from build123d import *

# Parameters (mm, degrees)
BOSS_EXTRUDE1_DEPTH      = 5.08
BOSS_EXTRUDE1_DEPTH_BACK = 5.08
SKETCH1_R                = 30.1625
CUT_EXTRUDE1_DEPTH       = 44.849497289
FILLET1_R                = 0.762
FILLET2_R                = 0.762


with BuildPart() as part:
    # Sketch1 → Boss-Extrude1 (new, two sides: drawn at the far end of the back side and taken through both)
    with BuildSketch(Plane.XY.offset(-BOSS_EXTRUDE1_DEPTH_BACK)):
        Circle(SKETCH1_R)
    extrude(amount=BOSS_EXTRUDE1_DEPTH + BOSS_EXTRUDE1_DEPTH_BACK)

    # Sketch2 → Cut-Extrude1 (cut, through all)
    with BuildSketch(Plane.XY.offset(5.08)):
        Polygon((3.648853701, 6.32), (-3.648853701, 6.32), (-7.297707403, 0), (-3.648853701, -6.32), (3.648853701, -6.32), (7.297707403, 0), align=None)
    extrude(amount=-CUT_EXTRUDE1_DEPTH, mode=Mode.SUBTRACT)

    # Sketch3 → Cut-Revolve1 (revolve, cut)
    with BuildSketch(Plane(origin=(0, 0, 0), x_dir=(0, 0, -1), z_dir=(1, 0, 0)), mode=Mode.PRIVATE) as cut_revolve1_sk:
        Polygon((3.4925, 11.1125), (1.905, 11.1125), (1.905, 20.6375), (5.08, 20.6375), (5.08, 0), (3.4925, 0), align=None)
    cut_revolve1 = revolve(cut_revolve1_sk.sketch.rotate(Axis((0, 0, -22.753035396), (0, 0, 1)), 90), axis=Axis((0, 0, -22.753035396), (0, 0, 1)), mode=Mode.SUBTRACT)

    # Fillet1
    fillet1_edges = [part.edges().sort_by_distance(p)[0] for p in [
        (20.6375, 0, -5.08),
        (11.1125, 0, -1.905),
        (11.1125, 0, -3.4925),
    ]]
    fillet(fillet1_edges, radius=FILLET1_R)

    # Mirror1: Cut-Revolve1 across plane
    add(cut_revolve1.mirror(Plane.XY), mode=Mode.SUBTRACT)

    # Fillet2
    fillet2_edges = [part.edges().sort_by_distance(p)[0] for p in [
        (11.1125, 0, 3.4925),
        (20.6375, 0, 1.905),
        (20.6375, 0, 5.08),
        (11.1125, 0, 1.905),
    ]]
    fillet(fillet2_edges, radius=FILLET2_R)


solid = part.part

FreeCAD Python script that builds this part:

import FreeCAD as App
import Part
import Sketcher
from FreeCAD import Vector
Q = App.Units.Quantity


def edges_at(feature, points):
    """Names of the edges that pass closest to the given points."""
    edges = feature.Shape.Edges
    near = lambda p: min(range(len(edges)), key=lambda i: edges[i].distToShape(Part.Vertex(*p))[0])
    return sorted({f"Edge{near(p) + 1}" for p in points})


def add_polygon(sketch, points):
    """Adds a closed chain of lines whose ends are joined by coincident constraints."""
    first, n = sketch.GeometryCount, len(points)
    for a, b in zip(points, points[1:] + points[:1]):
        sketch.addGeometry(Part.LineSegment(App.Vector(*a, 0), App.Vector(*b, 0)), False)
    for i in range(n):
        sketch.addConstraint(Sketcher.Constraint("Coincident", first + i, 2, first + (i + 1) % n, 1))

doc = App.newDocument("Part")
body = doc.addObject("PartDesign::Body", "Body")

# Sketch on XY plane
sketch1 = doc.addObject("Sketcher::SketchObject", "Sketch")
body.addObject(sketch1)
sketch1.AttachmentSupport = (doc.XY_Plane, [""])
sketch1.MapMode = "FlatFace"
sketch1.addGeometry(Part.Circle(Vector(0, 0, 0), Vector(0, 0, 1), 30.1625), False)
sketch1.addConstraint([
    Sketcher.Constraint("Coincident", 0, 3, -1, 1),
    Sketcher.Constraint("Diameter", 0, Q("2.375 in")),
])
pad1 = doc.addObject("PartDesign::Pad", "Pad")
body.addObject(pad1)
pad1.Profile = sketch1
pad1.Type = "TwoLengths"
pad1.Length = Q("0.2 in")
pad1.Length2 = Q("0.2 in")

# Sketch on XY plane
sketch2 = doc.addObject("Sketcher::SketchObject", "Sketch001")
body.addObject(sketch2)
sketch2.AttachmentSupport = (doc.XY_Plane, [""])
sketch2.MapMode = "FlatFace"
sketch2.AttachmentOffset = App.Placement(Vector(0, 0, 0.2 * 25.4), App.Rotation())
add_polygon(sketch2, [(3.648854, 6.32), (-3.648854, 6.32), (-7.297707, 0), (-3.648854, -6.32), (3.648854, -6.32), (7.297707, 0)])  # lines 0-5
sketch2.addConstraint([
    Sketcher.Constraint("Horizontal", 0),
    Sketcher.Constraint("Horizontal", 3),
    Sketcher.Constraint("Symmetric", 0, 2, 3, 2, -1, 1),
    Sketcher.Constraint("Symmetric", 1, 2, 4, 2, -1, 1),
    Sketcher.Constraint("PointOnObject", 1, 2, -1),
    Sketcher.Constraint("Parallel", 2, 5),
    Sketcher.Constraint("Vertical", 0, 2, 2, 2),
    Sketcher.Constraint("Angle", 1, Q("-120 deg")),
    Sketcher.Constraint("DistanceY", -1, 1, 0, 2, Q("6.32 mm")),
    Sketcher.Constraint("DistanceX", 0, 2, 0, 1, Q("7.297707 mm")),
])
pocket1 = doc.addObject("PartDesign::Pocket", "Pocket")
body.addObject(pocket1)
pocket1.Profile = sketch2
pocket1.Type = "ThroughAll"

# Sketch on YZ plane
sketch3 = doc.addObject("Sketcher::SketchObject", "Sketch002")
body.addObject(sketch3)
sketch3.AttachmentSupport = (doc.YZ_Plane, [""])
sketch3.MapMode = "FlatFace"
add_polygon(sketch3, [(11.1125, -1.905), (11.1125, -3.4925), (0, -3.4925), (0, -5.08), (20.6375, -5.08), (20.6375, -1.905)])  # lines 0-5
sketch3.addConstraint([
    Sketcher.Constraint("Vertical", 0),
    Sketcher.Constraint("Horizontal", 1),
    Sketcher.Constraint("Vertical", 2),
    Sketcher.Constraint("Horizontal", 3),
    Sketcher.Constraint("Vertical", 4),
    Sketcher.Constraint("Horizontal", 5),
    Sketcher.Constraint("PointOnObject", 1, 2, -2),
    Sketcher.Constraint("Equal", 0, 2),
    Sketcher.Constraint("DistanceY", 2, 2, -1, 1, Q("0.2 in")),
    Sketcher.Constraint("DistanceX", 1, 2, 1, 1, Q("0.4375 in")),
    Sketcher.Constraint("DistanceX", 3, 1, 3, 2, Q("0.8125 in")),
    Sketcher.Constraint("DistanceY", 0, 2, 0, 1, Q("0.0625 in")),
])
groove = doc.addObject("PartDesign::Groove", "Groove")
body.addObject(groove)
groove.Profile = sketch3
groove.ReferenceAxis = (sketch3, ["V_Axis"])
groove.Angle = 360
doc.recompute()

fillet = doc.addObject("PartDesign::Fillet", "Fillet")
body.addObject(fillet)
fillet.Base = (groove, edges_at(groove, [(20.637, 0, -5.08), (11.113, 0, -1.905), (11.113, 0, -3.493)]))
fillet.Radius = Q("0.03 in")
doc.recompute()

mirrored = doc.addObject("PartDesign::Mirrored", "Mirrored")
body.addObject(mirrored)
mirrored.Originals = [groove]
mirrored.MirrorPlane = (doc.XY_Plane, [""])
body.Tip = mirrored
doc.recompute()

fillet2 = doc.addObject("PartDesign::Fillet", "Fillet001")
body.addObject(fillet2)
fillet2.Base = (mirrored, edges_at(mirrored, [
    (11.113, 0, 3.493),
    (20.637, 0, 1.905),
    (20.637, 0, 5.08),
    (11.113, 0, 1.905),
]))
fillet2.Radius = Q("0.03 in")

doc.recompute()
